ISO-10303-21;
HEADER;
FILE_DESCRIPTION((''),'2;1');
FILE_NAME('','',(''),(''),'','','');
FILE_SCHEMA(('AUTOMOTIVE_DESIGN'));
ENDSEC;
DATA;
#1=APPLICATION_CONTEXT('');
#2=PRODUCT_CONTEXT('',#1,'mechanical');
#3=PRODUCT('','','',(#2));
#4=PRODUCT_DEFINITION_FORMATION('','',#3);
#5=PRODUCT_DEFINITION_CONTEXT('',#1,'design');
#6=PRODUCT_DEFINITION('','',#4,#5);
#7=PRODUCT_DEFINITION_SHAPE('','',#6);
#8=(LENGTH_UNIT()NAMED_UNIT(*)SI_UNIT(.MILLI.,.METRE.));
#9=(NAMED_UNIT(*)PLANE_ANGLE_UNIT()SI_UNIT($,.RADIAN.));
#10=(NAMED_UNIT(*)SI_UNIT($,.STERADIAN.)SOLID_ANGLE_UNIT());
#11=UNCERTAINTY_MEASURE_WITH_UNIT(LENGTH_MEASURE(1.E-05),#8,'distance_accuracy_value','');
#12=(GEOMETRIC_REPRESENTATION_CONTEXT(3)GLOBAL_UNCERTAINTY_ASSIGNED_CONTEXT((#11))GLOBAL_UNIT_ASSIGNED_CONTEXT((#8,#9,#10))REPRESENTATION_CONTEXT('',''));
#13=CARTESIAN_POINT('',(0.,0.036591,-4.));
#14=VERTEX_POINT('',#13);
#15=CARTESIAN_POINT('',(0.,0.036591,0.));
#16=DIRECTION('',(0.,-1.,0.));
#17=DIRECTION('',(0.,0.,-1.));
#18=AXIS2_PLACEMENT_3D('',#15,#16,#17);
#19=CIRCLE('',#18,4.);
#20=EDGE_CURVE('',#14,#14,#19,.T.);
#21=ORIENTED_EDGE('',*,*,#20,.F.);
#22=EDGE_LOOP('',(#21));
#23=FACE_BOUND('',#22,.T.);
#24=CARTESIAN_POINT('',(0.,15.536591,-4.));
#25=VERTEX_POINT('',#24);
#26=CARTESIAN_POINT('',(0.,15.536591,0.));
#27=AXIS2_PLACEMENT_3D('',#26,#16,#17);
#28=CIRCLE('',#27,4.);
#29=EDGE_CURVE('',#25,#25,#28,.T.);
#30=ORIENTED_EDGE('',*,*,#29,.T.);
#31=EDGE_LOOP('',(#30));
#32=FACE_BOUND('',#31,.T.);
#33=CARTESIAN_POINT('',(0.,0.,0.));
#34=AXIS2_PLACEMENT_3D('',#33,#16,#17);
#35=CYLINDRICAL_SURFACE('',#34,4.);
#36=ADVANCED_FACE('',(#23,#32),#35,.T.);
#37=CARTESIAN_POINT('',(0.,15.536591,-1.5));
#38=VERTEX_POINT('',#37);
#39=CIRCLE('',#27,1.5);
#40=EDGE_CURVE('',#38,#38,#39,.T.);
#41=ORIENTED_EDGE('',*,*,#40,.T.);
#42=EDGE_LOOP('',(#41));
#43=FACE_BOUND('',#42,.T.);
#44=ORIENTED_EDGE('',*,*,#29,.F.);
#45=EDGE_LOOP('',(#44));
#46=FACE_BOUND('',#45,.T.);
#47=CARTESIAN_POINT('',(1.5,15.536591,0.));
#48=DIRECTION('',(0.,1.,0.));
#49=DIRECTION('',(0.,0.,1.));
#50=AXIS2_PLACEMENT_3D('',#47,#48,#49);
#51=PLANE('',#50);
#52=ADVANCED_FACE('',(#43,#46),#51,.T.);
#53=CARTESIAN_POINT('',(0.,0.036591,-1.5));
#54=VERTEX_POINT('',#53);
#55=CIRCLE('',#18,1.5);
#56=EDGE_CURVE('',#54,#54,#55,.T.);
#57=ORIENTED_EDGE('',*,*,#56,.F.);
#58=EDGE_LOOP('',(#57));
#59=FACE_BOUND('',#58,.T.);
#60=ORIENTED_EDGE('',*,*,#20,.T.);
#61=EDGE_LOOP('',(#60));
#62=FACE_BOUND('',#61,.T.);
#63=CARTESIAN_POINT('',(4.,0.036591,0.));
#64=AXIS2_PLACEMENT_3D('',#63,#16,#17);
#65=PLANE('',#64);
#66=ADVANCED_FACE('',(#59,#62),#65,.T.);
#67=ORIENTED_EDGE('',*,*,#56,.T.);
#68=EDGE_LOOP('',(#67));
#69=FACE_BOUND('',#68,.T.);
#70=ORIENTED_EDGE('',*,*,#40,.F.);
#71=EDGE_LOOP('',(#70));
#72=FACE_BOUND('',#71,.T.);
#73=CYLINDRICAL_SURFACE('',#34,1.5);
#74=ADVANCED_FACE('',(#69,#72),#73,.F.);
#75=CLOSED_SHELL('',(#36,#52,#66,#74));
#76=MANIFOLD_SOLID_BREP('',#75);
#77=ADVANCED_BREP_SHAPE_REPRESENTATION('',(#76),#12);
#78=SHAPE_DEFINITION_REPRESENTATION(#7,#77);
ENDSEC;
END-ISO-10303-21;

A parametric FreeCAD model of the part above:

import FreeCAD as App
import Part
import Sketcher
from FreeCAD import Vector

doc = App.newDocument("Part")
body = doc.addObject("PartDesign::Body", "Body")

# Sketch on XY plane
sketch1 = body.newObject("Sketcher::SketchObject", "Sketch")
sketch1.AttachmentSupport = (doc.getObject("XY_Plane"), [""])
sketch1.MapMode = "FlatFace"
sketch1.addGeometry([
    Part.LineSegment(Vector(1.5, 15.5, 0), Vector(1.5, 0, 0)),
    Part.LineSegment(Vector(1.5, 0, 0), Vector(4, 0, 0)),
    Part.LineSegment(Vector(4, 0, 0), Vector(4, 15.5, 0)),
    Part.LineSegment(Vector(4, 15.5, 0), Vector(1.5, 15.5, 0)),
], False)
sketch1.addConstraint([
    Sketcher.Constraint("Coincident", 0, 2, 1, 1),
    Sketcher.Constraint("Coincident", 1, 2, 2, 1),
    Sketcher.Constraint("Coincident", 2, 2, 3, 1),
    Sketcher.Constraint("Coincident", 3, 2, 0, 1),
    Sketcher.Constraint("Vertical", 0),
    Sketcher.Constraint("Horizontal", 1),
    Sketcher.Constraint("Vertical", 2),
    Sketcher.Constraint("Horizontal", 3),
    Sketcher.Constraint("DistanceX", 1, 1, 1, 2, 2.5),
    Sketcher.Constraint("DistanceY", 0, 2, 0, 1, 15.5),
    Sketcher.Constraint("DistanceX", -1, 1, 1, 2, 4.0),
    Sketcher.Constraint("DistanceY", -1, 1, 0, 2, 0.036591),
])
revolution = body.newObject("PartDesign::Revolution", "Revolution")
revolution.Profile = sketch1
revolution.ReferenceAxis = (sketch1, ["V_Axis"])
revolution.Angle = 360

doc.recompute()
